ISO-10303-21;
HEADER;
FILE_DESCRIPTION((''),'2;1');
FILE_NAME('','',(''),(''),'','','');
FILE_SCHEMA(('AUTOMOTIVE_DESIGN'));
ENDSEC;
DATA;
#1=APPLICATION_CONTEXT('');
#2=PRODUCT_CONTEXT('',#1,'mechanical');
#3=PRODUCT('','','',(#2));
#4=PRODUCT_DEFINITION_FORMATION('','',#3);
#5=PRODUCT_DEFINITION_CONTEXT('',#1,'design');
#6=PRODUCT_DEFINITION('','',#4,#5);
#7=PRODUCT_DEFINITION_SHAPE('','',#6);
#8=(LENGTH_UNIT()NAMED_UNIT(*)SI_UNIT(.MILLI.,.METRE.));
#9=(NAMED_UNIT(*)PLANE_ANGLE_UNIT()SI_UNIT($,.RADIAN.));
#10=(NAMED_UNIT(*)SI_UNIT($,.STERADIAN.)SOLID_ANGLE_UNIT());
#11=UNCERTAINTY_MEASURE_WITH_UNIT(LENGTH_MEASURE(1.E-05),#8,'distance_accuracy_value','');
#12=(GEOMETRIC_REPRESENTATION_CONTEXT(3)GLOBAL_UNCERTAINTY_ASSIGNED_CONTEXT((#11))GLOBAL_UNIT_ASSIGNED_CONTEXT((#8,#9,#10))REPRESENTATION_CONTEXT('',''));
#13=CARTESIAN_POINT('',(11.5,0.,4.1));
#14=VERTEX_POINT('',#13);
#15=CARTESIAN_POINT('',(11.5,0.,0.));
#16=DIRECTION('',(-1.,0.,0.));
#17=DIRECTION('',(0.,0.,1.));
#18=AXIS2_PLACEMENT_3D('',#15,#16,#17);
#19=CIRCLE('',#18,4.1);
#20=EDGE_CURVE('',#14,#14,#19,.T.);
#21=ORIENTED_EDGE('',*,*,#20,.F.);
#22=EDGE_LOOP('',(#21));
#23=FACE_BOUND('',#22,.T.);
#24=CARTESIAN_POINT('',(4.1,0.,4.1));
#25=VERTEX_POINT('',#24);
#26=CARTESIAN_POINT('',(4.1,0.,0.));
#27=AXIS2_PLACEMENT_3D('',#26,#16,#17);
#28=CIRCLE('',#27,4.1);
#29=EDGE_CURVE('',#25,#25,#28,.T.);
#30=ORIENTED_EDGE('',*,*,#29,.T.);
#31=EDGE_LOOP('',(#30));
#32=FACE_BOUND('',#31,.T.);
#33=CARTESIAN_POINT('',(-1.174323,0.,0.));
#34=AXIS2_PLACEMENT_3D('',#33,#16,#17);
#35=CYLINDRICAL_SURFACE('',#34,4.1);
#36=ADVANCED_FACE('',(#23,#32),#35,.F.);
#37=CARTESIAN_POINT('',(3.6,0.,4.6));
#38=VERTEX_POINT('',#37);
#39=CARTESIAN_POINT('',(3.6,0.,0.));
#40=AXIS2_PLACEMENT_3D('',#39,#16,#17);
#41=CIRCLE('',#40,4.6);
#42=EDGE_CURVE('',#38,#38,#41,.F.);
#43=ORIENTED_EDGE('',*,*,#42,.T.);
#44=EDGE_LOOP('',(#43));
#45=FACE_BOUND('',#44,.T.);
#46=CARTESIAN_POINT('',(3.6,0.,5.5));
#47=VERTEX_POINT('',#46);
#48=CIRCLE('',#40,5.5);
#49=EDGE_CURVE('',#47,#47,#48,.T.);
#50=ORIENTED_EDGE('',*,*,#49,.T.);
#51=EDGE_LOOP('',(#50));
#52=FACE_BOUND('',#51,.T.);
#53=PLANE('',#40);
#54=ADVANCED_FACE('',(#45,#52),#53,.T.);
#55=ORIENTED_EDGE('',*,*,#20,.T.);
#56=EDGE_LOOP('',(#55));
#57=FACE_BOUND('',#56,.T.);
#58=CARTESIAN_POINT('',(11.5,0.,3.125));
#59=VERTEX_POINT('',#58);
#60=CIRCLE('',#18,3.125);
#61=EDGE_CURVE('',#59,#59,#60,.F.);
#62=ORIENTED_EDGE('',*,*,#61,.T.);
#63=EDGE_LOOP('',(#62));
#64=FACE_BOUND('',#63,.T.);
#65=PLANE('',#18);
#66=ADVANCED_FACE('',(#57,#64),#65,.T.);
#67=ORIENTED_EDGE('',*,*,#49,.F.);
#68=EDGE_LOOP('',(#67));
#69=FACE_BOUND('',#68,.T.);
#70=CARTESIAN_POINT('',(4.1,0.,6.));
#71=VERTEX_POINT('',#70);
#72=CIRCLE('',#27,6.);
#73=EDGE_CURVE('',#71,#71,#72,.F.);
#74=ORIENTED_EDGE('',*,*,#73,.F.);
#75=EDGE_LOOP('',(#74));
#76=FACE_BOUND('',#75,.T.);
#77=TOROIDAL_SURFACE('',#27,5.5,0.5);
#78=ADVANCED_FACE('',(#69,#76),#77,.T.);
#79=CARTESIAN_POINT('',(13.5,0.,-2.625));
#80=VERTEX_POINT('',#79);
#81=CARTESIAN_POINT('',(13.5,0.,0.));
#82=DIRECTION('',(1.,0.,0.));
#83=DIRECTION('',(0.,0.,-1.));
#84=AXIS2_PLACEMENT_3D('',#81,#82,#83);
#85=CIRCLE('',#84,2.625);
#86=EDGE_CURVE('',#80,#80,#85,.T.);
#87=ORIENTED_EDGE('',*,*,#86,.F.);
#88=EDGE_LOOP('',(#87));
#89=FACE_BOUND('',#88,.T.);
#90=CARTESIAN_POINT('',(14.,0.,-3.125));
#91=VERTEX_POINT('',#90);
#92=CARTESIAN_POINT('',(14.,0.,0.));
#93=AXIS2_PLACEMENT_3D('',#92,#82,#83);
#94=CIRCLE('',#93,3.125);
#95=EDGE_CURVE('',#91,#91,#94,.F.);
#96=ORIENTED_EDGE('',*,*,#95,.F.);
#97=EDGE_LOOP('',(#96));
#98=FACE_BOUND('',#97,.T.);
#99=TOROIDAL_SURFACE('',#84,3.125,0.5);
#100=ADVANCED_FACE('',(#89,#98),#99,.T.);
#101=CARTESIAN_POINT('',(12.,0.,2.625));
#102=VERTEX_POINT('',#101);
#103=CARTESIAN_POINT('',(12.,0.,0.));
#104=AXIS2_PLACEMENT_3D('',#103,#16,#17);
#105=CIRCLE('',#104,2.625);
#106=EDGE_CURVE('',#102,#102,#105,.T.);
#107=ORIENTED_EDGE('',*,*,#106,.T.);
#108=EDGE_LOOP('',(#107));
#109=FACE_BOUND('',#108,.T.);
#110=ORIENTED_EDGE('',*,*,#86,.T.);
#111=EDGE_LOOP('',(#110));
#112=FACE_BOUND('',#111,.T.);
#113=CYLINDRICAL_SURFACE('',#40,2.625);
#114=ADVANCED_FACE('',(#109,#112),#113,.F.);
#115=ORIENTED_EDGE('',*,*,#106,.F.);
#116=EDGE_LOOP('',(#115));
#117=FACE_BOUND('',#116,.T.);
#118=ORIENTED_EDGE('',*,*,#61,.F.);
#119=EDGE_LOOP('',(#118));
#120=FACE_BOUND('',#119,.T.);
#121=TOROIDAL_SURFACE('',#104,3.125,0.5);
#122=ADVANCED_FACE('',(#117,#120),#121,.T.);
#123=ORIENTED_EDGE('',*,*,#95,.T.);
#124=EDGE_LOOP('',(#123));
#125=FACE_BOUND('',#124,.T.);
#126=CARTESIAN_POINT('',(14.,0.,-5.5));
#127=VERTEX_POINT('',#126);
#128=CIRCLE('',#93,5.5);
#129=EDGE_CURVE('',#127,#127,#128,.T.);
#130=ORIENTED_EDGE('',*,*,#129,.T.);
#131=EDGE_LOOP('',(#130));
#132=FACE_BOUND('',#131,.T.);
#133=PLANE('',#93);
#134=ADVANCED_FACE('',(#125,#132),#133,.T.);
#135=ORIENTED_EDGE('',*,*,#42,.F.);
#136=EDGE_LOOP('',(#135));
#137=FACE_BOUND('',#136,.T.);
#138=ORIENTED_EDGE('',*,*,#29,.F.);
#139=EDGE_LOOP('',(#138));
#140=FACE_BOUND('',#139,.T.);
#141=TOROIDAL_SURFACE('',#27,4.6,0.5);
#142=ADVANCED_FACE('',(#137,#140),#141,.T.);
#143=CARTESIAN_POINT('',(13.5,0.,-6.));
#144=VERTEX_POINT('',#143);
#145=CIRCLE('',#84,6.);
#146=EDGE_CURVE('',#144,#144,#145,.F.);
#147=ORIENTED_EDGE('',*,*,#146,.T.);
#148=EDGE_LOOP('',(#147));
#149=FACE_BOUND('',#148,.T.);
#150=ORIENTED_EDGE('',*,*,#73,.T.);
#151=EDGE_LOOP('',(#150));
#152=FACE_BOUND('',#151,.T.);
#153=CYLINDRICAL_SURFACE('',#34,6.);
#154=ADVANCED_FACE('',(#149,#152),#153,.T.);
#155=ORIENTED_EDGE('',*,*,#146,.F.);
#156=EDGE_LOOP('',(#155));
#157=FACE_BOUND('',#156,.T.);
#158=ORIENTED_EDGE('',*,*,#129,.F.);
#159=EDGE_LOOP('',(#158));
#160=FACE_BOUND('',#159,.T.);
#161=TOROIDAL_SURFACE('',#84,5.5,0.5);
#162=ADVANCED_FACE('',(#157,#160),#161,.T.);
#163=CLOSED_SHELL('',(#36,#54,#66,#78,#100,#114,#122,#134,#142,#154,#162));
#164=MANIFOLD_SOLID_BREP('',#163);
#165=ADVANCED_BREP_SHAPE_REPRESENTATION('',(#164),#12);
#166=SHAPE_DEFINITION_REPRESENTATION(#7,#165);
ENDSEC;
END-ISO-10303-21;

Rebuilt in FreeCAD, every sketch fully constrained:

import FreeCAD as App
import Part
import Sketcher
Q = App.Units.Quantity


def edges_at(feature, points):
    """Names of the edges that pass closest to the given points."""
    edges = feature.Shape.Edges
    near = lambda p: min(range(len(edges)), key=lambda i: edges[i].distToShape(Part.Vertex(*p))[0])
    return sorted({f"Edge{near(p) + 1}" for p in points})


def add_polygon(sketch, points):
    """Adds a closed chain of lines whose ends are joined by coincident constraints."""
    first, n = sketch.GeometryCount, len(points)
    for a, b in zip(points, points[1:] + points[:1]):
        sketch.addGeometry(Part.LineSegment(App.Vector(*a, 0), App.Vector(*b, 0)), False)
    for i in range(n):
        sketch.addConstraint(Sketcher.Constraint("Coincident", first + i, 2, first + (i + 1) % n, 1))

doc = App.newDocument("Part")
body = doc.addObject("PartDesign::Body", "Body")

# Sketch on XY plane
sketch1 = doc.addObject("Sketcher::SketchObject", "Sketch")
body.addObject(sketch1)
sketch1.AttachmentSupport = (doc.XY_Plane, [""])
sketch1.MapMode = "FlatFace"
add_polygon(sketch1, [(3.6, 4.1), (11.5, 4.1), (11.5, 0), (14, 0), (14, 6), (3.6, 6)])  # lines 0-5
sketch1.addConstraint([
    Sketcher.Constraint("Horizontal", 0),
    Sketcher.Constraint("Vertical", 1),
    Sketcher.Constraint("Horizontal", 2),
    Sketcher.Constraint("Vertical", 3),
    Sketcher.Constraint("Horizontal", 4),
    Sketcher.Constraint("Vertical", 5),
    Sketcher.Constraint("PointOnObject", 1, 2, -1),
    Sketcher.Constraint("DistanceY", 3, 1, 3, 2, Q("6 mm")),
    Sketcher.Constraint("DistanceX", 0, 1, 0, 2, Q("7.9 mm")),
    Sketcher.Constraint("DistanceX", 2, 1, 2, 2, Q("2.5 mm")),
    Sketcher.Constraint("DistanceY", 1, 2, 1, 1, Q("4.1 mm")),
    Sketcher.Constraint("DistanceX", -1, 1, 2, 2, Q("14 mm")),
])
revolution = doc.addObject("PartDesign::Revolution", "Revolution")
body.addObject(revolution)
revolution.Profile = sketch1
revolution.ReferenceAxis = (sketch1, ["H_Axis"])
revolution.Angle = 360

# Sketch on YZ plane
sketch2 = doc.addObject("Sketcher::SketchObject", "Sketch001")
body.addObject(sketch2)
sketch2.AttachmentSupport = (doc.YZ_Plane, [""])
sketch2.MapMode = "FlatFace"
sketch2.addGeometry(Part.Circle(App.Vector(0, 0, 0), App.Vector(0, 0, 1), 2.625), False)
sketch2.addConstraint([
    Sketcher.Constraint("Coincident", 0, 3, -1, 1),
    Sketcher.Constraint("Diameter", 0, Q("5.25 mm")),
])
pocket1 = doc.addObject("PartDesign::Pocket", "Pocket")
body.addObject(pocket1)
pocket1.Profile = sketch2
pocket1.Type = "ThroughAll"
pocket1.Midplane = True
doc.recompute()

fillet = doc.addObject("PartDesign::Fillet", "Fillet")
body.addObject(fillet)
fillet.Base = (pocket1, edges_at(pocket1, [
    (11.5, 0, -2.625),
    (14, 0, -2.625),
    (3.6, 0, -4.1),
    (3.6, 0, -6),
    (14, 0, -6),
]))
fillet.Radius = 0.5

doc.recompute()
